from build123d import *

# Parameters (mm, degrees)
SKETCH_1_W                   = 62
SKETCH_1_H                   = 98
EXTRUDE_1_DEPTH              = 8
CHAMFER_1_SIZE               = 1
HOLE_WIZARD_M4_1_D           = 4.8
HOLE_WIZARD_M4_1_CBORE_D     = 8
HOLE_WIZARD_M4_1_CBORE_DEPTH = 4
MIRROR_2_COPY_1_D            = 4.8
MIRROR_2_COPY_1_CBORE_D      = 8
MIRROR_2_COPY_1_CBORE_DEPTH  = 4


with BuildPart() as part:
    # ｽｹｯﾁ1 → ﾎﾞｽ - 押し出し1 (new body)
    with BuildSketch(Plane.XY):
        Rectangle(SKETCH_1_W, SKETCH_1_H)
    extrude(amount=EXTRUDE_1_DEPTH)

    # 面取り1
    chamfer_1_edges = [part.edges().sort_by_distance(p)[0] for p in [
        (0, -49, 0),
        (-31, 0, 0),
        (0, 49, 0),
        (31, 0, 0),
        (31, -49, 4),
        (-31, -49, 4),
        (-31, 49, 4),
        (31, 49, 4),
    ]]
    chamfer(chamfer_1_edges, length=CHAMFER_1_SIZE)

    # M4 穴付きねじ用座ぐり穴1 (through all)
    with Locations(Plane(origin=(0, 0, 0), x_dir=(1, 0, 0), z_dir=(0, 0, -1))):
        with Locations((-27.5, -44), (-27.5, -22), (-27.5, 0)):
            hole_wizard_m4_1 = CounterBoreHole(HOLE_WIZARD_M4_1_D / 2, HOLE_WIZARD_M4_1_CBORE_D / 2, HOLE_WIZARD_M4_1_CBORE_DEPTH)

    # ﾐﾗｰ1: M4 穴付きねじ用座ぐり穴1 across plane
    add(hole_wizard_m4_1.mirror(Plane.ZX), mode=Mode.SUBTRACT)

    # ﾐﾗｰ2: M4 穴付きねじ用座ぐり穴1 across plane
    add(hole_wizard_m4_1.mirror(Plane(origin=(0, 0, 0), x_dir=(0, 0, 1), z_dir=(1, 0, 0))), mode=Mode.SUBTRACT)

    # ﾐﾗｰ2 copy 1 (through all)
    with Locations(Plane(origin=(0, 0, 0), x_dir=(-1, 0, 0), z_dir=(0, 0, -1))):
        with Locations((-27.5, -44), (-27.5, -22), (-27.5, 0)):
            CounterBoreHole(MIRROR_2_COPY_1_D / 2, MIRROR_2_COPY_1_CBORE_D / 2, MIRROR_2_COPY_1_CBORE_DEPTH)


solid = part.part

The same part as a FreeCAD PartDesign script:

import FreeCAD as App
import Part
import Sketcher
from FreeCAD import Vector


def edges_at(feature, points):
    """Names of the edges that pass closest to the given points."""
    edges = feature.Shape.Edges
    near = lambda p: min(range(len(edges)), key=lambda i: edges[i].distToShape(Part.Vertex(*p))[0])
    return sorted({f"Edge{near(p) + 1}" for p in points})

doc = App.newDocument("Part")
body = doc.addObject("PartDesign::Body", "Body")

# Sketch on XY plane
sketch1 = doc.addObject("Sketcher::SketchObject", "Sketch")
body.addObject(sketch1)
sketch1.AttachmentSupport = (doc.XY_Plane, [""])
sketch1.MapMode = "FlatFace"
sketch1.addGeometry(Part.LineSegment(Vector(-31, 49, 0), Vector(-31, -49, 0)), False)
sketch1.addGeometry(Part.LineSegment(Vector(-31, -49, 0), Vector(31, -49, 0)), False)
sketch1.addGeometry(Part.LineSegment(Vector(31, -49, 0), Vector(31, 49, 0)), False)
sketch1.addGeometry(Part.LineSegment(Vector(31, 49, 0), Vector(-31, 49, 0)), False)
sketch1.addConstraint(Sketcher.Constraint("Coincident", 0, 2, 1, 1))
sketch1.addConstraint(Sketcher.Constraint("Coincident", 1, 2, 2, 1))
sketch1.addConstraint(Sketcher.Constraint("Coincident", 2, 2, 3, 1))
sketch1.addConstraint(Sketcher.Constraint("Coincident", 3, 2, 0, 1))
sketch1.addConstraint(Sketcher.Constraint("Vertical", 0))
sketch1.addConstraint(Sketcher.Constraint("Horizontal", 1))
sketch1.addConstraint(Sketcher.Constraint("Vertical", 2))
sketch1.addConstraint(Sketcher.Constraint("Horizontal", 3))
sketch1.addConstraint(Sketcher.Constraint("Symmetric", 0, 2, 2, 2, -1, 1))
sketch1.addConstraint(Sketcher.Constraint("DistanceX", 1, 1, 1, 2, 62.0))
sketch1.addConstraint(Sketcher.Constraint("DistanceY", 0, 2, 0, 1, 98.0))
pad1 = doc.addObject("PartDesign::Pad", "Pad")
body.addObject(pad1)
pad1.Profile = sketch1
pad1.Length = 8
doc.recompute()

chamfer = doc.addObject("PartDesign::Chamfer", "Chamfer")
body.addObject(chamfer)
chamfer.Base = (pad1, edges_at(pad1, [
    (0, -49, 0),
    (-31, 0, 0),
    (0, 49, 0),
    (31, 0, 0),
    (31, -49, 4),
    (-31, -49, 4),
    (-31, 49, 4),
    (31, 49, 4),
]))
chamfer.Size = 1

# Sketch on XY plane
sketch2 = doc.addObject("Sketcher::SketchObject", "Sketch001")
body.addObject(sketch2)
sketch2.AttachmentSupport = (doc.XY_Plane, [""])
sketch2.MapMode = "FlatFace"
sketch2.addGeometry(Part.Circle(Vector(-27.5, 44, 0), Vector(0, 0, 1), 2.4), False)
sketch2.addGeometry(Part.Circle(Vector(-27.5, 22, 0), Vector(0, 0, 1), 2.4), False)
sketch2.addGeometry(Part.Circle(Vector(-27.5, 0, 0), Vector(0, 0, 1), 2.4), False)
sketch2.addConstraint(Sketcher.Constraint("Equal", 0, 1))
sketch2.addConstraint(Sketcher.Constraint("Equal", 1, 2))
sketch2.addConstraint(Sketcher.Constraint("PointOnObject", 2, 3, -1))
sketch2.addConstraint(Sketcher.Constraint("Vertical", 0, 3, 1, 3))
sketch2.addConstraint(Sketcher.Constraint("Vertical", 1, 3, 2, 3))
sketch2.addConstraint(Sketcher.Constraint("Diameter", 0, 4.8))
sketch2.addConstraint(Sketcher.Constraint("DistanceY", -1, 1, 0, 3, 44.0))
sketch2.addConstraint(Sketcher.Constraint("DistanceY", -1, 1, 1, 3, 22.0))
sketch2.addConstraint(Sketcher.Constraint("DistanceX", 0, 3, -1, 1, 27.5))
doc.recompute()
hole = doc.addObject("PartDesign::Hole", "Hole")
body.addObject(hole)
hole.Profile = sketch2
hole.ThreadType = "None"
hole.Diameter = 4.8
hole.DepthType = "ThroughAll"
hole.HoleCutType = "Counterbore"
hole.HoleCutDiameter = 8
hole.HoleCutDepth = 4
hole.Reversed = True
doc.recompute()

mirrored = doc.addObject("PartDesign::Mirrored", "Mirrored")
body.addObject(mirrored)
mirrored.Originals = [hole]
mirrored.MirrorPlane = (doc.XZ_Plane, [""])
body.Tip = mirrored
doc.recompute()

mirrored2 = doc.addObject("PartDesign::Mirrored", "Mirrored001")
body.addObject(mirrored2)
mirrored2.Originals = [hole]
mirrored2.MirrorPlane = (doc.YZ_Plane, [""])
body.Tip = mirrored2

# Sketch on XY plane
sketch3 = doc.addObject("Sketcher::SketchObject", "Sketch002")
body.addObject(sketch3)
sketch3.AttachmentSupport = (doc.XY_Plane, [""])
sketch3.MapMode = "FlatFace"
sketch3.addGeometry(Part.Circle(Vector(27.5, -44, 0), Vector(0, 0, 1), 2.4), False)
sketch3.addGeometry(Part.Circle(Vector(27.5, -22, 0), Vector(0, 0, 1), 2.4), False)
sketch3.addGeometry(Part.Circle(Vector(27.5, 0, 0), Vector(0, 0, 1), 2.4), False)
sketch3.addConstraint(Sketcher.Constraint("Equal", 0, 1))
sketch3.addConstraint(Sketcher.Constraint("Equal", 1, 2))
sketch3.addConstraint(Sketcher.Constraint("PointOnObject", 2, 3, -1))
sketch3.addConstraint(Sketcher.Constraint("Vertical", 0, 3, 1, 3))
sketch3.addConstraint(Sketcher.Constraint("Vertical", 1, 3, 2, 3))
sketch3.addConstraint(Sketcher.Constraint("Diameter", 0, 4.8))
sketch3.addConstraint(Sketcher.Constraint("DistanceY", 0, 3, -1, 1, 44.0))
sketch3.addConstraint(Sketcher.Constraint("DistanceY", 1, 3, -1, 1, 22.0))
sketch3.addConstraint(Sketcher.Constraint("DistanceX", -1, 1, 0, 3, 27.5))
doc.recompute()
hole2 = doc.addObject("PartDesign::Hole", "Hole001")
body.addObject(hole2)
hole2.Profile = sketch3
hole2.ThreadType = "None"
hole2.Diameter = 4.8
hole2.DepthType = "ThroughAll"
hole2.HoleCutType = "Counterbore"
hole2.HoleCutDiameter = 8
hole2.HoleCutDepth = 4
hole2.Reversed = True

doc.recompute()
